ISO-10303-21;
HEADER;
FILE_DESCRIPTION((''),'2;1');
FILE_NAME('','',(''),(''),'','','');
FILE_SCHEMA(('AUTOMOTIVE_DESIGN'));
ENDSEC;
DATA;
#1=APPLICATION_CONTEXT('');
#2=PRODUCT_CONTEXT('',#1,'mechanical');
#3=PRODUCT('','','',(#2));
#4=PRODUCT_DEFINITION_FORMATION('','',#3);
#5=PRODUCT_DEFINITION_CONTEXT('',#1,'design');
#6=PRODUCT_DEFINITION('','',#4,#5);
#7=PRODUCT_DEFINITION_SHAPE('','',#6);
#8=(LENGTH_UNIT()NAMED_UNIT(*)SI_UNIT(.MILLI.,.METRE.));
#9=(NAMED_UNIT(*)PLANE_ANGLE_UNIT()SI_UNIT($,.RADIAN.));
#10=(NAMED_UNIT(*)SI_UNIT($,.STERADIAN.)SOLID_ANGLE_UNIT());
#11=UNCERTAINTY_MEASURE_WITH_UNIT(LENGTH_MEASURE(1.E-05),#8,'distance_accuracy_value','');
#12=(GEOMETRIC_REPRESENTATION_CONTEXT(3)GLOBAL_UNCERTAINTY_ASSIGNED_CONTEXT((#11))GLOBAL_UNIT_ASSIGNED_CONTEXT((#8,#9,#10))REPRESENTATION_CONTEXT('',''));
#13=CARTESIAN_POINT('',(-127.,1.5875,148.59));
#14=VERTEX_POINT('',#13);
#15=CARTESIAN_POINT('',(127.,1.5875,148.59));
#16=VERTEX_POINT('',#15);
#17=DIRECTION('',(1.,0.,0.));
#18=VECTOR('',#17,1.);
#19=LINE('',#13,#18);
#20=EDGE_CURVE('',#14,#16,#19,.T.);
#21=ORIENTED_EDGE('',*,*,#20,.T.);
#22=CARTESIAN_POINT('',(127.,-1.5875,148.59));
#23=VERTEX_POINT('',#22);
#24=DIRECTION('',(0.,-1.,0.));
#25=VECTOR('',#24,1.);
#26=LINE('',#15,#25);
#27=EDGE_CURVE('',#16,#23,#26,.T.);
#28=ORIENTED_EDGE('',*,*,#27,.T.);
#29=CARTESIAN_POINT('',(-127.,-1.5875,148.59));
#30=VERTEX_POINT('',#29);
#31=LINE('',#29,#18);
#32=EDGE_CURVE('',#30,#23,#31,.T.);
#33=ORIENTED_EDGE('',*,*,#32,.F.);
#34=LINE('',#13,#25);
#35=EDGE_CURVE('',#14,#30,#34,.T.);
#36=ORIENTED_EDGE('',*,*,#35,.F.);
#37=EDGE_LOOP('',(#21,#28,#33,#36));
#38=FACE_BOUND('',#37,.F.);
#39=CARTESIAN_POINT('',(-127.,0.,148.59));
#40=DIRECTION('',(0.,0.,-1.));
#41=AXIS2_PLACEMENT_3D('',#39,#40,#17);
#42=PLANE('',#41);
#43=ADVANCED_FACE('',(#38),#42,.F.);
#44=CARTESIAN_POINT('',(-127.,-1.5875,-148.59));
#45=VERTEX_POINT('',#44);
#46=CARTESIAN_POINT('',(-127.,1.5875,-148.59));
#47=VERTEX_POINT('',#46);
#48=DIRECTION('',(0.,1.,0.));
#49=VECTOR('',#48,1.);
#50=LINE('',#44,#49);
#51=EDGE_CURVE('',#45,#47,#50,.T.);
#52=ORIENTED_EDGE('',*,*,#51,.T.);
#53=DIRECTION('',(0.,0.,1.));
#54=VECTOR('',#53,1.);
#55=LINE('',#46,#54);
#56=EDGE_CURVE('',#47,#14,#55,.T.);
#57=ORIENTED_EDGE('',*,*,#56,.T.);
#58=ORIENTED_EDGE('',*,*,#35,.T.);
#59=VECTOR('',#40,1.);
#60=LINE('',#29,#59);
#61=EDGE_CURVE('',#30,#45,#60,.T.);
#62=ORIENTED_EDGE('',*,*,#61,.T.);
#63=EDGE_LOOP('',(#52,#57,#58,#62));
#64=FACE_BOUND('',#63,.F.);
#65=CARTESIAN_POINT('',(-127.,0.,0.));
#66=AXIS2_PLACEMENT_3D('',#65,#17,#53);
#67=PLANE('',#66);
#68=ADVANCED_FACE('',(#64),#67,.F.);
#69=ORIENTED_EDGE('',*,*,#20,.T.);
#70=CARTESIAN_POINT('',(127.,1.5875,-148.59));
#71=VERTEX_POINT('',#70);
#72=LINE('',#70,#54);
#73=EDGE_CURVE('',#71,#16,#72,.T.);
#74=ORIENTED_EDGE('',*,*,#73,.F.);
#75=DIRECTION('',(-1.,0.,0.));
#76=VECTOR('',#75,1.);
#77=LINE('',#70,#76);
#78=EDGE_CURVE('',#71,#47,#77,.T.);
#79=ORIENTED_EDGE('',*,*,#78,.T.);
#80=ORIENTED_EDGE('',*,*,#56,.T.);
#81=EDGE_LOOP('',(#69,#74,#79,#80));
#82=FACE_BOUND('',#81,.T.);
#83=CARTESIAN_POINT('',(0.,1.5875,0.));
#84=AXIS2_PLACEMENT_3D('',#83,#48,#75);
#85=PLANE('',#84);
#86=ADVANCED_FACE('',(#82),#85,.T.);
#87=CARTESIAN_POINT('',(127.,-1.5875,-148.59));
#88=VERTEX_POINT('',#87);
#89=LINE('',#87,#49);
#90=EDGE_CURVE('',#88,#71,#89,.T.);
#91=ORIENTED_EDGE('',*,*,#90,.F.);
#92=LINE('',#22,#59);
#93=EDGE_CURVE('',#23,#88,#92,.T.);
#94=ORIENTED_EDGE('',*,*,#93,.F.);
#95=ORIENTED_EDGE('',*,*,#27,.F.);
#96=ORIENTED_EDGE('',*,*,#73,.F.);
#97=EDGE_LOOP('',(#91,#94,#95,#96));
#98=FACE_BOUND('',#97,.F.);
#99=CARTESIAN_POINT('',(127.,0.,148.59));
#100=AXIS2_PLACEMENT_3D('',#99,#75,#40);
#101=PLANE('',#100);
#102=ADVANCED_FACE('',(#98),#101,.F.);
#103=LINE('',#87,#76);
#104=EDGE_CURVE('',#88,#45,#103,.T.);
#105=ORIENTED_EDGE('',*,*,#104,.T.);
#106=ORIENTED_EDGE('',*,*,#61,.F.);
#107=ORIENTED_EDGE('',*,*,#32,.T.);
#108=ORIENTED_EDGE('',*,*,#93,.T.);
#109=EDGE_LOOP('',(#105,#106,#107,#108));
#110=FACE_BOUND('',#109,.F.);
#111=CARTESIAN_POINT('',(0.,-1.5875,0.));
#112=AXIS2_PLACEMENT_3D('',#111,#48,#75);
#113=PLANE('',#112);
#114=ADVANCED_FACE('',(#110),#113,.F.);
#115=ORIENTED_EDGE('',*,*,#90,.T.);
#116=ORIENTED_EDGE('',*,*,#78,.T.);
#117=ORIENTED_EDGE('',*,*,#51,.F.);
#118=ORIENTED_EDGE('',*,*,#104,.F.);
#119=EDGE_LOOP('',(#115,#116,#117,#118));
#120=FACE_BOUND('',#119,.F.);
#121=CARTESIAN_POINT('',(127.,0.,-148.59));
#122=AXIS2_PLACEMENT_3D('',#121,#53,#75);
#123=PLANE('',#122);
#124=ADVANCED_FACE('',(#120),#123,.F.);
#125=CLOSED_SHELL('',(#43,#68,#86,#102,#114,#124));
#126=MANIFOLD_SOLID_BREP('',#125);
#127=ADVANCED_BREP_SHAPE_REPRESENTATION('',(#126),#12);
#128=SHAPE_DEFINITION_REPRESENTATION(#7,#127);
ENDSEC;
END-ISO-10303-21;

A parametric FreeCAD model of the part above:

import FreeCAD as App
import Part
import Sketcher
Q = App.Units.Quantity

doc = App.newDocument("Part")
body = doc.addObject("PartDesign::Body", "Body")

sketch1 = body.newObject("Sketcher::SketchObject", "Sketch")
sketch1.AttachmentSupport = (doc.getObject("XZ_Plane"), [""])
sketch1.MapMode = "FlatFace"
sketch1.addGeometry([
    Part.LineSegment(App.Vector(127, 148.59, 0), App.Vector(127, -148.59, 0)),
    Part.LineSegment(App.Vector(127, -148.59, 0), App.Vector(-127, -148.59, 0)),
    Part.LineSegment(App.Vector(-127, -148.59, 0), App.Vector(-127, 148.59, 0)),
    Part.LineSegment(App.Vector(-127, 148.59, 0), App.Vector(127, 148.59, 0)),
], False)
sketch1.addConstraint([
    Sketcher.Constraint("Coincident", 0, 2, 1, 1),
    Sketcher.Constraint("Coincident", 1, 2, 2, 1),
    Sketcher.Constraint("Coincident", 2, 2, 3, 1),
    Sketcher.Constraint("Coincident", 3, 2, 0, 1),
    Sketcher.Constraint("Vertical", 0),
    Sketcher.Constraint("Horizontal", 1),
    Sketcher.Constraint("Vertical", 2),
    Sketcher.Constraint("Horizontal", 3),
    Sketcher.Constraint("Symmetric", 0, 2, 2, 2, -1, 1),
    Sketcher.Constraint("DistanceX", 1, 2, 1, 1, Q("10 in")),
    Sketcher.Constraint("DistanceY", 0, 2, 0, 1, Q("11.7 in")),
])
pad1 = body.newObject("PartDesign::Pad", "Pad")
pad1.Profile = sketch1
pad1.Length = Q("0.125 in")
pad1.Midplane = True

doc.recompute()
